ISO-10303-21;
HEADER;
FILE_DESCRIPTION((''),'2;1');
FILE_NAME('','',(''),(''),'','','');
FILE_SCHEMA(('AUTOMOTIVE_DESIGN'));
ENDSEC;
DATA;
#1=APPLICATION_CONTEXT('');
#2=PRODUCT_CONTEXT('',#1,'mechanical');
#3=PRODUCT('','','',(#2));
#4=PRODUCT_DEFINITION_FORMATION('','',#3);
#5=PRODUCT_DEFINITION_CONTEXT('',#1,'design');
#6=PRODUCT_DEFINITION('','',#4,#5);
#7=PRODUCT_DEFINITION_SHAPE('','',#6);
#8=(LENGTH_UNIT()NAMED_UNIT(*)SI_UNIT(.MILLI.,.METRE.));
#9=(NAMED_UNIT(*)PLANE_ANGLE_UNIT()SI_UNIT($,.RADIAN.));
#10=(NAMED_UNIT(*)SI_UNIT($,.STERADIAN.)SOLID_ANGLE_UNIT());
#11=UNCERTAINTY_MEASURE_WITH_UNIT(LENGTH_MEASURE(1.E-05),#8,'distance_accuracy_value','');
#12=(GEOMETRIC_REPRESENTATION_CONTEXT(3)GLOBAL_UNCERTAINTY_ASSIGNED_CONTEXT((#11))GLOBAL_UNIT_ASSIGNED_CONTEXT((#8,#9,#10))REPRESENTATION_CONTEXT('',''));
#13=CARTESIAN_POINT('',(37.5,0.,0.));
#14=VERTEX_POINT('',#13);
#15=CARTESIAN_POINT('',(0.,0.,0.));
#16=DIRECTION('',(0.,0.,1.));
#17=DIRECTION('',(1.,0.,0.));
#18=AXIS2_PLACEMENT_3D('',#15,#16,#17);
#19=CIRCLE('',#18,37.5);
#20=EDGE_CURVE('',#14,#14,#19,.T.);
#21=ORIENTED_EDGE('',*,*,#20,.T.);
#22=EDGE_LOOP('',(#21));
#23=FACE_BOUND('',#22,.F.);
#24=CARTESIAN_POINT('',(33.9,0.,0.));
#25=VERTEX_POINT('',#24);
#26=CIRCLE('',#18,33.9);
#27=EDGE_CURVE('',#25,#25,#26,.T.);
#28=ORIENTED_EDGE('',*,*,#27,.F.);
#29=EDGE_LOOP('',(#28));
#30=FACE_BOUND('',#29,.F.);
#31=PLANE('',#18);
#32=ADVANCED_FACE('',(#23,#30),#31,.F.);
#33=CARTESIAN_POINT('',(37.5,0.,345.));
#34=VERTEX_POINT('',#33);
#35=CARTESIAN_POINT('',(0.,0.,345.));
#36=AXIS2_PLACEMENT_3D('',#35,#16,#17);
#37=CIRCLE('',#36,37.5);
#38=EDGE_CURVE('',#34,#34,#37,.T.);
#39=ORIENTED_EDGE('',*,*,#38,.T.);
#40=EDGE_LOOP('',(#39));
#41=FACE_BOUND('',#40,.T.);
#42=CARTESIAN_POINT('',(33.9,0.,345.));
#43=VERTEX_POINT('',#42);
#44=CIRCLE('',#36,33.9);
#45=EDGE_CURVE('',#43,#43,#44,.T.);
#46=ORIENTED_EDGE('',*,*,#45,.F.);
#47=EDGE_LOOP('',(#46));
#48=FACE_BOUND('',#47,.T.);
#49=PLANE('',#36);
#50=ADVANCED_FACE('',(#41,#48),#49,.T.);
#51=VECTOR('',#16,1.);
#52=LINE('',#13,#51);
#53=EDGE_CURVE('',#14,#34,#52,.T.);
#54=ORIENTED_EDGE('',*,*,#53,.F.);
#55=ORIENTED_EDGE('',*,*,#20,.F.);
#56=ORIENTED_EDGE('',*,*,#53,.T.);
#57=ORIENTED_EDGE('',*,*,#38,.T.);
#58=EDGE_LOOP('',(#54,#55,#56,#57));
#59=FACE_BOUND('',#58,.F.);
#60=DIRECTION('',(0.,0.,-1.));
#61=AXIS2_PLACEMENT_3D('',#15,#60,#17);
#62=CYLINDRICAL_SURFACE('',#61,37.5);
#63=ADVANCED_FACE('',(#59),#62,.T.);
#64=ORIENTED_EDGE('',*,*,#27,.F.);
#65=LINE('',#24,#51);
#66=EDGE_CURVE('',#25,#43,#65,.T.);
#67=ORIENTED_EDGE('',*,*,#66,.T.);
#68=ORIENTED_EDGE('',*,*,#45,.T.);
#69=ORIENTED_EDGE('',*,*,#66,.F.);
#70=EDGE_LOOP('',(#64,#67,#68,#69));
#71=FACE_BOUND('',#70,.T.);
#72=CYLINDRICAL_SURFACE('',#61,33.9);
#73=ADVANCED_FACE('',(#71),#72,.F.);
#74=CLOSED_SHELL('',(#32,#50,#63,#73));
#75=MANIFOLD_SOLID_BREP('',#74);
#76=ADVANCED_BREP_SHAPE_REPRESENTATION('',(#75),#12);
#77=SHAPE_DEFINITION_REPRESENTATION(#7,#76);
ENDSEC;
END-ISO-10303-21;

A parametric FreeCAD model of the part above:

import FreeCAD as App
import Part
import Sketcher

doc = App.newDocument("Part")
body = doc.addObject("PartDesign::Body", "Body")

# Sketch on XY plane
sketch1 = body.newObject("Sketcher::SketchObject", "Sketch")
sketch1.AttachmentSupport = (doc.getObject("XY_Plane"), [""])
sketch1.MapMode = "FlatFace"
sketch1.addGeometry([
    Part.Circle(App.Vector(0, 0, 0), App.Vector(0, 0, 1), 37.5),
    Part.Circle(App.Vector(0, 0, 0), App.Vector(0, 0, 1), 33.9),
], False)
sketch1.addConstraint([
    Sketcher.Constraint("Coincident", 0, 3, -1, 1),
    Sketcher.Constraint("Coincident", 1, 3, -1, 1),
    Sketcher.Constraint("Diameter", 0, 75.0),
    Sketcher.Constraint("Diameter", 1, 67.8),
])
pad1 = body.newObject("PartDesign::Pad", "Pad")
pad1.Profile = sketch1
pad1.Length = 345

doc.recompute()
